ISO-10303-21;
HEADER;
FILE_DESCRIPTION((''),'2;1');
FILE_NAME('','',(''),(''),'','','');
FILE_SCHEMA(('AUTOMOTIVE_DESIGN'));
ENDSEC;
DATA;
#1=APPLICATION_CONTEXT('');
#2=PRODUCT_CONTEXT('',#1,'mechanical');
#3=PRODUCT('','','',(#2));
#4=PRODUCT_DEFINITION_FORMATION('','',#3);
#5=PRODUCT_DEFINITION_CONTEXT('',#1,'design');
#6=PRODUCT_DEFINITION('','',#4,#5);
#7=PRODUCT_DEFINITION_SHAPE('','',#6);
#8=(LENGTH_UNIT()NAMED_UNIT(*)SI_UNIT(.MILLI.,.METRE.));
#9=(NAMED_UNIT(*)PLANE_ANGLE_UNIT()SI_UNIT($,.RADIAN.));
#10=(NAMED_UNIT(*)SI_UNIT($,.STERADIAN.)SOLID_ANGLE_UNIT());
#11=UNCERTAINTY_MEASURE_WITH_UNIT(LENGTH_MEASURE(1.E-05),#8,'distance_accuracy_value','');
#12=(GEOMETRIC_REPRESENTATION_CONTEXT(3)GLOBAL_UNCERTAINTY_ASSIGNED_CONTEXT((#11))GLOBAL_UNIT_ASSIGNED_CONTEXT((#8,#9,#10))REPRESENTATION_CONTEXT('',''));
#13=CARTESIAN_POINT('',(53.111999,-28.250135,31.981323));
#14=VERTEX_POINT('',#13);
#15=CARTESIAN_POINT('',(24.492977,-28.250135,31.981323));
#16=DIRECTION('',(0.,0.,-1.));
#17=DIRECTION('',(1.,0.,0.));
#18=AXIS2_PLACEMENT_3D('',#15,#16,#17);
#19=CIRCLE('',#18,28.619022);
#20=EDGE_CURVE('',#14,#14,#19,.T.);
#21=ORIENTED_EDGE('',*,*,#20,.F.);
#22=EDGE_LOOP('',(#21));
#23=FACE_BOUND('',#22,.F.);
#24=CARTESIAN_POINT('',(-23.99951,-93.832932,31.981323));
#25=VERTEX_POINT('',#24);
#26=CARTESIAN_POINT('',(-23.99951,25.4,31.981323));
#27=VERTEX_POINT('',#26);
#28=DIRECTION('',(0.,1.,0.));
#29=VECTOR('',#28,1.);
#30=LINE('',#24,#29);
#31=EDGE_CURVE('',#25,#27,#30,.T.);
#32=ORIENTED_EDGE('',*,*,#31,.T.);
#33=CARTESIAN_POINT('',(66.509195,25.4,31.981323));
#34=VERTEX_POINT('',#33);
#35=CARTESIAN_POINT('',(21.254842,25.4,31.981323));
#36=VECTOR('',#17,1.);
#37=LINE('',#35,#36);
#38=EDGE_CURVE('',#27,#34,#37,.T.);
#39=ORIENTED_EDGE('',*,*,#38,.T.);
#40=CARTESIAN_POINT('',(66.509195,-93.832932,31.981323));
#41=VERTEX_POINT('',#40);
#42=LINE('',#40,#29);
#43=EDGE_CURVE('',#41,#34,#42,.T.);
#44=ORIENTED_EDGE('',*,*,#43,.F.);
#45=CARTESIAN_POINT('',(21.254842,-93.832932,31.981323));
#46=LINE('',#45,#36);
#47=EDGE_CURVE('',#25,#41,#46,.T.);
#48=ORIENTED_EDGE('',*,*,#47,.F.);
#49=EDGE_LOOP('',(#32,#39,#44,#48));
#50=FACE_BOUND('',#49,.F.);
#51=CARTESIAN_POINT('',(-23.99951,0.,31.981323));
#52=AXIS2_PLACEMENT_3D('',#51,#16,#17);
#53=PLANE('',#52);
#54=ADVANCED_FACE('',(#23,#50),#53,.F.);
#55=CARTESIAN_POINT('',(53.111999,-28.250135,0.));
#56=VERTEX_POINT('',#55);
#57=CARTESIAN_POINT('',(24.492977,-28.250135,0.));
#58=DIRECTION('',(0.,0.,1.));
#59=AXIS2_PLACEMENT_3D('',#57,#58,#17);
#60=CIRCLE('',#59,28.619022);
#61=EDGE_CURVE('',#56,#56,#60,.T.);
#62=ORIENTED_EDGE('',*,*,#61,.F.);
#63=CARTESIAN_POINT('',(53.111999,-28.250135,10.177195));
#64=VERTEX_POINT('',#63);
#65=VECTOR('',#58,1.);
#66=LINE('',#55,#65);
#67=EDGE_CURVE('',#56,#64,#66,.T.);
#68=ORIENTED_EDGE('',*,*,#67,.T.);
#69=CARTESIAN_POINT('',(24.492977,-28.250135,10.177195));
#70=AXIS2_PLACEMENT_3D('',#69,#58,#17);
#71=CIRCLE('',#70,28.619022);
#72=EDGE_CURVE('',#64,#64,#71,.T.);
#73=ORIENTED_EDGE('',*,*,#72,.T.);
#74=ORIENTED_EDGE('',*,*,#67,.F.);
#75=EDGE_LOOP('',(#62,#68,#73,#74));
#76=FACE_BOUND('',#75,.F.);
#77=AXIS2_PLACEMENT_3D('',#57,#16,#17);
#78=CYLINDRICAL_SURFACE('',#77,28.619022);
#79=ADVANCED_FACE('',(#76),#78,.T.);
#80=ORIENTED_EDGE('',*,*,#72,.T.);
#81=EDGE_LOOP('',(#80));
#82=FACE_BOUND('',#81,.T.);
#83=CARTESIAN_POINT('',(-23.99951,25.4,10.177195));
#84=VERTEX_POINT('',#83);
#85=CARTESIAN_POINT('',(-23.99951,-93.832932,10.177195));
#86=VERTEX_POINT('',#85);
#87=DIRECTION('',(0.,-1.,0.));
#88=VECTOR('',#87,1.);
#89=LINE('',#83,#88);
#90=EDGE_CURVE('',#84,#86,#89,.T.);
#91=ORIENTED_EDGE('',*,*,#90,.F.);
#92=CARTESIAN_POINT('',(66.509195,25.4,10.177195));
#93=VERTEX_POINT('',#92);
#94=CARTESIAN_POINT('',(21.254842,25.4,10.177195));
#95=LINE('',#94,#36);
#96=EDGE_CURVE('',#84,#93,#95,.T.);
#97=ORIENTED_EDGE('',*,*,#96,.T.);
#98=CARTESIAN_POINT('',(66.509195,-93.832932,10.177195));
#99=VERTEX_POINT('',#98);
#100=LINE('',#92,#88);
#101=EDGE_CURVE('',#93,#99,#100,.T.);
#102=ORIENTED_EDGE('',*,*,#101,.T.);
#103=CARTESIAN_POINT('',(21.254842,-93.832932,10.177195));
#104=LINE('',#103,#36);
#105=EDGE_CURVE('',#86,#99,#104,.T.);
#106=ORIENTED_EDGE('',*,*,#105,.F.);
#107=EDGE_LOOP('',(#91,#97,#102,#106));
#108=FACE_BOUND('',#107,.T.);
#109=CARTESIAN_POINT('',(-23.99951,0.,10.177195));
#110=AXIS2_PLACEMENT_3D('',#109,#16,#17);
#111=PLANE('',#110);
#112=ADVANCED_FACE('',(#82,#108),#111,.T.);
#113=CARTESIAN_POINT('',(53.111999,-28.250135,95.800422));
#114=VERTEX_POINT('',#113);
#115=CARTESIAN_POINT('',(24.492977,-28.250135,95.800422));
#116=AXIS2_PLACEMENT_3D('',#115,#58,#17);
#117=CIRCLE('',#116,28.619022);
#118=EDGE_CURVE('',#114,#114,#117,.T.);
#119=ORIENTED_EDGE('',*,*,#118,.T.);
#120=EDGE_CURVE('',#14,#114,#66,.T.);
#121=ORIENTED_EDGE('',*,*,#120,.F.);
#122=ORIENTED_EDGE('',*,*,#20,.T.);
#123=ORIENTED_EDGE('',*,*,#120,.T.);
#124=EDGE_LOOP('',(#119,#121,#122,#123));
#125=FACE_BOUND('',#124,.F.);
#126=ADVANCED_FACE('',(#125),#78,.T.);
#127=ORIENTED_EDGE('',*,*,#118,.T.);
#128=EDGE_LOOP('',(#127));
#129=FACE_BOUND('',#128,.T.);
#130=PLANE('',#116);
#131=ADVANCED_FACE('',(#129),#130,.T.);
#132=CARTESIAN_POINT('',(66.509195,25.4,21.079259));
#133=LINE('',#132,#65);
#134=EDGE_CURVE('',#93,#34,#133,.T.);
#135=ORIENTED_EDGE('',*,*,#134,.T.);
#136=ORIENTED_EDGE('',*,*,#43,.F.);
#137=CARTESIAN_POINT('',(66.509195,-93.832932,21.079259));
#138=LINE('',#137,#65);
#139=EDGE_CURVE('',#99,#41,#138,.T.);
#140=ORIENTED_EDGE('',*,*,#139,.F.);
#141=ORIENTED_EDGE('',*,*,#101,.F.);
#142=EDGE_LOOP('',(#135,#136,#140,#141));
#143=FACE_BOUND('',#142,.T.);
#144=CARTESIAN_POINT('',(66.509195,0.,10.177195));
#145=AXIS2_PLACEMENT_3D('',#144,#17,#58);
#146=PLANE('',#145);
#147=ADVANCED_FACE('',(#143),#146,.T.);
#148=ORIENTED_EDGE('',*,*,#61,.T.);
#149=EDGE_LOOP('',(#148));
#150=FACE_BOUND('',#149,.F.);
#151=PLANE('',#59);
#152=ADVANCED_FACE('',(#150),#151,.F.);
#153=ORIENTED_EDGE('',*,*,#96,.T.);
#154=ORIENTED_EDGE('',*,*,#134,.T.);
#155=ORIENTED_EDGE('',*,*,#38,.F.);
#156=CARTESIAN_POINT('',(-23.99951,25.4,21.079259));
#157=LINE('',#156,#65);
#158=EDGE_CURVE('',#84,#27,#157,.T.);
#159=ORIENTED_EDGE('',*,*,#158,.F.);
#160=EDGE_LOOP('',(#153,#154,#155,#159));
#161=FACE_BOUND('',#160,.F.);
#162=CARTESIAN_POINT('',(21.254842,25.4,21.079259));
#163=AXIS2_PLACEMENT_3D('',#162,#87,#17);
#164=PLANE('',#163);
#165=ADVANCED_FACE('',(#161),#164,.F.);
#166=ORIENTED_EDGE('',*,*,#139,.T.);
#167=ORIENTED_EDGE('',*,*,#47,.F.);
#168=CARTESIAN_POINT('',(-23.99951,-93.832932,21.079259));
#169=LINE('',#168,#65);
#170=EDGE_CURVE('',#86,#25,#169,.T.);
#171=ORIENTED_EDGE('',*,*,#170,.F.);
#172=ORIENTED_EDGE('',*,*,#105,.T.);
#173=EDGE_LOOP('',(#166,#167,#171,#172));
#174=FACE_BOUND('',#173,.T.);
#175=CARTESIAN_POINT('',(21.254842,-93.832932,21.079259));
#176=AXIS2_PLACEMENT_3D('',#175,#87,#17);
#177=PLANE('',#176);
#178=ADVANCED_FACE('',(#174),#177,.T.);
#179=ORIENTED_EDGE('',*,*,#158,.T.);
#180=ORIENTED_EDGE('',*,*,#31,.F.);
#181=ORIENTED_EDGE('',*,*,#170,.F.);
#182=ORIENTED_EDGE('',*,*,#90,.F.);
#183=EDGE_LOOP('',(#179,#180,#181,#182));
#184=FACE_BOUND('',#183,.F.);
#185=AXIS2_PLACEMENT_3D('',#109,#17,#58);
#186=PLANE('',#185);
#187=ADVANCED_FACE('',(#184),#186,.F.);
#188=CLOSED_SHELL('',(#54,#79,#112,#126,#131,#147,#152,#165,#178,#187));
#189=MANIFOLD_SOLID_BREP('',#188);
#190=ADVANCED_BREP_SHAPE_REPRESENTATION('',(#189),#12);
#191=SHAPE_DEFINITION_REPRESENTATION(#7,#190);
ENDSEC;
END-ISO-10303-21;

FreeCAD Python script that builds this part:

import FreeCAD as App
import Part
import Sketcher

V = App.Vector


def add_polygon(sketch, points):
    """Adds a closed chain of lines whose ends are joined by coincident constraints."""
    first, n = sketch.GeometryCount, len(points)
    for a, b in zip(points, points[1:] + points[:1]):
        sketch.addGeometry(Part.LineSegment(App.Vector(*a, 0), App.Vector(*b, 0)), False)
    for i in range(n):
        sketch.addConstraint(Sketcher.Constraint("Coincident", first + i, 2, first + (i + 1) % n, 1))

doc = App.newDocument("Part")
body = doc.addObject("PartDesign::Body", "Body")

# Sketch on XY plane
sketch1 = body.newObject("Sketcher::SketchObject", "Sketch")
sketch1.AttachmentSupport = (doc.getObject("XY_Plane"), [""])
sketch1.MapMode = "FlatFace"
sketch1.addGeometry(Part.Circle(V(24, -28, 0), V(0, 0, 1), 29), False)
sketch1.addConstraint(Sketcher.Constraint("Diameter", 0, 57.238044))
sketch1.addConstraint(Sketcher.Constraint("DistanceX", -1, 1, 0, 3, 24.492977))
sketch1.addConstraint(Sketcher.Constraint("DistanceY", 0, 3, -1, 1, 28.250135))
pad1 = body.newObject("PartDesign::Pad", "Pad")
pad1.Profile = sketch1
pad1.Length = 95.800422

# Sketch on XZ plane
sketch2 = body.newObject("Sketcher::SketchObject", "Sketch001")
sketch2.AttachmentSupport = (doc.getObject("XZ_Plane"), [""])
sketch2.MapMode = "FlatFace"
add_polygon(sketch2, [(-24, 32), (-24, 10), (67, 10), (67, 32)])  # lines 0-3
sketch2.addConstraint(Sketcher.Constraint("Vertical", 0))
sketch2.addConstraint(Sketcher.Constraint("Horizontal", 1))
sketch2.addConstraint(Sketcher.Constraint("Vertical", 2))
sketch2.addConstraint(Sketcher.Constraint("Horizontal", 3))
sketch2.addConstraint(Sketcher.Constraint("DistanceX", 1, 1, 1, 2, 90.508705))
sketch2.addConstraint(Sketcher.Constraint("DistanceY", 0, 2, 0, 1, 21.804128))
sketch2.addConstraint(Sketcher.Constraint("DistanceX", 0, 2, -1, 1, 23.99951))
sketch2.addConstraint(Sketcher.Constraint("DistanceY", -1, 1, 0, 2, 10.177195))
pad2 = body.newObject("PartDesign::Pad", "Pad001")
pad2.Profile = sketch2
pad2.Type = "TwoLengths"
pad2.Length = 93.832932
pad2.Length2 = 25.4

doc.recompute()
